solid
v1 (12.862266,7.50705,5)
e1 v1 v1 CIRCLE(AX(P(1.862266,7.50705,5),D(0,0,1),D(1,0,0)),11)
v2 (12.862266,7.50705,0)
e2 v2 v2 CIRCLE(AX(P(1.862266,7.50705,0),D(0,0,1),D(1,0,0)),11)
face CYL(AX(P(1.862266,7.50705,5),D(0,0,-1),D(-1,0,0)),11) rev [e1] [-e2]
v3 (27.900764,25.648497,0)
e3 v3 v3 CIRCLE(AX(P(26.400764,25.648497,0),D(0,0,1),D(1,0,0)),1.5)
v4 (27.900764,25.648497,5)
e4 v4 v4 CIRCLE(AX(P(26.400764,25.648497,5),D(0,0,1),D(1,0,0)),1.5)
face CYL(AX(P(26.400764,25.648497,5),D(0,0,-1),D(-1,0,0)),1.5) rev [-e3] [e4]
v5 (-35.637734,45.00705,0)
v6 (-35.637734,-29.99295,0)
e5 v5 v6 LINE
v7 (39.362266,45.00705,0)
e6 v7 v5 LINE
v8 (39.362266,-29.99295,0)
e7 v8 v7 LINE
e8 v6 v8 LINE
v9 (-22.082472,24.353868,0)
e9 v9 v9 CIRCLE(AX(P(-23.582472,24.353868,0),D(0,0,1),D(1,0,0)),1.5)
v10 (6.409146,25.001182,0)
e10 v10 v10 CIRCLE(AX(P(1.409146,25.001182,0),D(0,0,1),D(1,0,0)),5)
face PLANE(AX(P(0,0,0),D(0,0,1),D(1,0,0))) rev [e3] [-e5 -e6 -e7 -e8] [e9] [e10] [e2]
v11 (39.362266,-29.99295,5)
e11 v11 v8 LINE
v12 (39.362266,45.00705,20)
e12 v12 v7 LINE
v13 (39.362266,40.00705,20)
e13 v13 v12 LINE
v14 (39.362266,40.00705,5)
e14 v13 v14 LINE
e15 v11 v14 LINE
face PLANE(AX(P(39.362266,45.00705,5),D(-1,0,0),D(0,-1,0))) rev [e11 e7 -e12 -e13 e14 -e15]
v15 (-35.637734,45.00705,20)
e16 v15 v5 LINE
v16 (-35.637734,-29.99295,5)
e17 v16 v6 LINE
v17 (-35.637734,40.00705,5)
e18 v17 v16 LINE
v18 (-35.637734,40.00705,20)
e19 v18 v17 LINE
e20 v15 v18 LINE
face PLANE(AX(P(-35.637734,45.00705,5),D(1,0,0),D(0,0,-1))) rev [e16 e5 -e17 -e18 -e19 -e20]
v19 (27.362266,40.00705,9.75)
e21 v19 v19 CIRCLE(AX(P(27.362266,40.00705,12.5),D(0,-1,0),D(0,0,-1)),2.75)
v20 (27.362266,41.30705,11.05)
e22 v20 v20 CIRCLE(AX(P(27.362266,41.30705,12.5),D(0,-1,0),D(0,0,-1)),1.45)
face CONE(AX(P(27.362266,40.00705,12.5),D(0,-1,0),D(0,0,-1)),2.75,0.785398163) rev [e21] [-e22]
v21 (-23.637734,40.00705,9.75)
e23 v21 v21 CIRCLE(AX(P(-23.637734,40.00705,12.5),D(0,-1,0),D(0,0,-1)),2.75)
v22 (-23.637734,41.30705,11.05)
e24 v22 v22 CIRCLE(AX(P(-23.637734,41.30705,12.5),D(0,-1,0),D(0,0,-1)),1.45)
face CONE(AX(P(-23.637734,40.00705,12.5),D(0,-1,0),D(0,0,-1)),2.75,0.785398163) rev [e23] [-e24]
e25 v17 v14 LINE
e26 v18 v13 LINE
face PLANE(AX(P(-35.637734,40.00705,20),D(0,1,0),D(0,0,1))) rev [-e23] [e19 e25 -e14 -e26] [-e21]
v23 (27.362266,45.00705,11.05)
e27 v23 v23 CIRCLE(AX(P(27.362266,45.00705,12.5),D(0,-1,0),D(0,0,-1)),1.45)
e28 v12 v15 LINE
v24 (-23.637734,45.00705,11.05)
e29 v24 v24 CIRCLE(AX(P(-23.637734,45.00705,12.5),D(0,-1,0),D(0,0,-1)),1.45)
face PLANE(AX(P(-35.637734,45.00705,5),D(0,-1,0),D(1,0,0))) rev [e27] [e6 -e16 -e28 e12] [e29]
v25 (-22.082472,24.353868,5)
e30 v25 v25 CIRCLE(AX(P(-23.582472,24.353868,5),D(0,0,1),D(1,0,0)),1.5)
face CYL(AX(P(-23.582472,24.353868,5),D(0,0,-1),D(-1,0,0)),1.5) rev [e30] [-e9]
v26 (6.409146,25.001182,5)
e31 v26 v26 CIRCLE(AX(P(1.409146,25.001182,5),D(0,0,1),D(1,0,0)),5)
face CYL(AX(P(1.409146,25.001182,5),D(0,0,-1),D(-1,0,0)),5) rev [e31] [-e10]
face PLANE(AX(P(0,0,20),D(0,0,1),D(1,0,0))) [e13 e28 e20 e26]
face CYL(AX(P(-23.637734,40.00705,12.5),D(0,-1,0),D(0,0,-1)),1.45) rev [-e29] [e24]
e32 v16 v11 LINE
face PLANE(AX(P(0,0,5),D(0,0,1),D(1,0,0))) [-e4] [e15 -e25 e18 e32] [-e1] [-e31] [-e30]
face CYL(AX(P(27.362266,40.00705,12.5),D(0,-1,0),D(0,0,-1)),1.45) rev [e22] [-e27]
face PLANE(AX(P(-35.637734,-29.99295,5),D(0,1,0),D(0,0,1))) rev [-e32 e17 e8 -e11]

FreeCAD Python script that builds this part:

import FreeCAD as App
import Part
import Sketcher

V = App.Vector
Q = App.Units.Quantity

doc = App.newDocument("Part")
body = doc.addObject("PartDesign::Body", "Body")

sketch1 = doc.addObject("Sketcher::SketchObject", "Sketch")
body.addObject(sketch1)
sketch1.AttachmentSupport = (doc.XY_Plane, [""])
sketch1.MapMode = "FlatFace"
sketch1.addGeometry(Part.LineSegment(V(-35.637734, 45.00705, 0), V(-35.637734, -29.99295, 0)), False)
sketch1.addGeometry(Part.LineSegment(V(-35.637734, -29.99295, 0), V(39.362266, -29.99295, 0)), False)
sketch1.addGeometry(Part.LineSegment(V(39.362266, -29.99295, 0), V(39.362266, 45.00705, 0)), False)
sketch1.addGeometry(Part.LineSegment(V(39.362266, 45.00705, 0), V(-35.637734, 45.00705, 0)), False)
sketch1.addGeometry(Part.Circle(V(1.862266, 7.50705, 0), V(0, 0, 1), 11), False)
sketch1.addGeometry(Part.Circle(V(-23.582472, 24.353868, 0), V(0, 0, 1), 1.5), False)
sketch1.addGeometry(Part.Circle(V(1.409146, 25.001182, 0), V(0, 0, 1), 5), False)
sketch1.addGeometry(Part.Circle(V(26.400764, 25.648497, 0), V(0, 0, 1), 1.5), False)
sketch1.addConstraint(Sketcher.Constraint("Coincident", 0, 2, 1, 1))
sketch1.addConstraint(Sketcher.Constraint("Coincident", 1, 2, 2, 1))
sketch1.addConstraint(Sketcher.Constraint("Coincident", 2, 2, 3, 1))
sketch1.addConstraint(Sketcher.Constraint("Coincident", 3, 2, 0, 1))
sketch1.addConstraint(Sketcher.Constraint("Vertical", 0))
sketch1.addConstraint(Sketcher.Constraint("Horizontal", 1))
sketch1.addConstraint(Sketcher.Constraint("Vertical", 2))
sketch1.addConstraint(Sketcher.Constraint("Horizontal", 3))
sketch1.addConstraint(Sketcher.Constraint("Equal", 5, 7))
sketch1.addConstraint(Sketcher.Constraint("Equal", 3, 0))
sketch1.addConstraint(Sketcher.Constraint("Diameter", 4, Q("22 mm")))
sketch1.addConstraint(Sketcher.Constraint("Diameter", 5, Q("3 mm")))
sketch1.addConstraint(Sketcher.Constraint("Diameter", 6, Q("10 mm")))
sketch1.addConstraint(Sketcher.Constraint("DistanceX", 1, 1, 1, 2, Q("75 mm")))
sketch1.addConstraint(Sketcher.Constraint("DistanceX", 0, 2, 4, 3, Q("37.5 mm")))
sketch1.addConstraint(Sketcher.Constraint("DistanceY", 0, 2, 4, 3, Q("37.5 mm")))
sketch1.addConstraint(Sketcher.Constraint("DistanceX", 4, 3, 7, 3, Q("24.538498 mm")))
sketch1.addConstraint(Sketcher.Constraint("DistanceY", -1, 1, 4, 3, Q("7.50705 mm")))
sketch1.addConstraint(Sketcher.Constraint("DistanceX", 5, 3, 4, 3, Q("25.444738 mm")))
sketch1.addConstraint(Sketcher.Constraint("DistanceY", 4, 3, 5, 3, Q("16.846818 mm")))
sketch1.addConstraint(Sketcher.Constraint("DistanceX", 6, 3, 4, 3, Q("0.45312 mm")))
sketch1.addConstraint(Sketcher.Constraint("DistanceY", 5, 3, 7, 3, Q("1.294629 mm")))
sketch1.addConstraint(Sketcher.Constraint("DistanceX", -1, 1, 4, 3, Q("1.862266 mm")))
sketch1.addConstraint(Sketcher.Constraint("DistanceY", -1, 1, 6, 3, Q("25.001182 mm")))
pad1 = doc.addObject("PartDesign::Pad", "Pad")
body.addObject(pad1)
pad1.Profile = sketch1
pad1.Length = 5

sketch2 = doc.addObject("Sketcher::SketchObject", "Sketch001")
body.addObject(sketch2)
sketch2.AttachmentSupport = (doc.XY_Plane, [""])
sketch2.MapMode = "FlatFace"
sketch2.AttachmentOffset = App.Placement(V(0, 0, 5), App.Rotation())
sketch2.addGeometry(Part.LineSegment(V(-35.637734, 45.00705, 0), V(-35.637734, 40.00705, 0)), False)
sketch2.addGeometry(Part.LineSegment(V(-35.637734, 40.00705, 0), V(39.362266, 40.00705, 0)), False)
sketch2.addGeometry(Part.LineSegment(V(39.362266, 40.00705, 0), V(39.362266, 45.00705, 0)), False)
sketch2.addGeometry(Part.LineSegment(V(39.362266, 45.00705, 0), V(-35.637734, 45.00705, 0)), False)
sketch2.addConstraint(Sketcher.Constraint("Coincident", 0, 2, 1, 1))
sketch2.addConstraint(Sketcher.Constraint("Coincident", 1, 2, 2, 1))
sketch2.addConstraint(Sketcher.Constraint("Coincident", 2, 2, 3, 1))
sketch2.addConstraint(Sketcher.Constraint("Coincident", 3, 2, 0, 1))
sketch2.addConstraint(Sketcher.Constraint("Vertical", 0))
sketch2.addConstraint(Sketcher.Constraint("Horizontal", 1))
sketch2.addConstraint(Sketcher.Constraint("Vertical", 2))
sketch2.addConstraint(Sketcher.Constraint("Horizontal", 3))
sketch2.addConstraint(Sketcher.Constraint("DistanceX", 1, 1, 1, 2, Q("75 mm")))
sketch2.addConstraint(Sketcher.Constraint("DistanceY", 0, 2, 0, 1, Q("5 mm")))
sketch2.addConstraint(Sketcher.Constraint("DistanceY", -1, 1, 0, 2, Q("40.00705 mm")))
sketch2.addConstraint(Sketcher.Constraint("DistanceX", 0, 2, -1, 1, Q("35.637734 mm")))
pad2 = doc.addObject("PartDesign::Pad", "Pad001")
body.addObject(pad2)
pad2.Profile = sketch2
pad2.Length = 15

sketch3 = doc.addObject("Sketcher::SketchObject", "Sketch002")
body.addObject(sketch3)
sketch3.AttachmentSupport = (doc.XZ_Plane, [""])
sketch3.MapMode = "FlatFace"
sketch3.AttachmentOffset = App.Placement(V(0, 0, -40.00705), App.Rotation())
sketch3.addGeometry(Part.Circle(V(27.362266, 12.5, 0), V(0, 0, 1), 1.45), False)
sketch3.addGeometry(Part.Circle(V(-23.637734, 12.5, 0), V(0, 0, 1), 1.45), False)
sketch3.addConstraint(Sketcher.Constraint("Equal", 0, 1))
sketch3.addConstraint(Sketcher.Constraint("Horizontal", 0, 3, 1, 3))
sketch3.addConstraint(Sketcher.Constraint("Diameter", 0, Q("2.9 mm")))
sketch3.addConstraint(Sketcher.Constraint("DistanceX", 1, 3, 0, 3, Q("51 mm")))
sketch3.addConstraint(Sketcher.Constraint("DistanceY", -1, 1, 0, 3, Q("12.5 mm")))
sketch3.addConstraint(Sketcher.Constraint("DistanceX", -1, 1, 0, 3, Q("27.362266 mm")))
doc.recompute()
hole = doc.addObject("PartDesign::Hole", "Hole")
body.addObject(hole)
hole.Profile = sketch3
hole.ThreadType = "None"
hole.Diameter = 2.9
hole.DepthType = "ThroughAll"
hole.HoleCutType = "Countersink"
hole.HoleCutDiameter = 5.5
hole.HoleCutCountersinkAngle = 90

doc.recompute()
